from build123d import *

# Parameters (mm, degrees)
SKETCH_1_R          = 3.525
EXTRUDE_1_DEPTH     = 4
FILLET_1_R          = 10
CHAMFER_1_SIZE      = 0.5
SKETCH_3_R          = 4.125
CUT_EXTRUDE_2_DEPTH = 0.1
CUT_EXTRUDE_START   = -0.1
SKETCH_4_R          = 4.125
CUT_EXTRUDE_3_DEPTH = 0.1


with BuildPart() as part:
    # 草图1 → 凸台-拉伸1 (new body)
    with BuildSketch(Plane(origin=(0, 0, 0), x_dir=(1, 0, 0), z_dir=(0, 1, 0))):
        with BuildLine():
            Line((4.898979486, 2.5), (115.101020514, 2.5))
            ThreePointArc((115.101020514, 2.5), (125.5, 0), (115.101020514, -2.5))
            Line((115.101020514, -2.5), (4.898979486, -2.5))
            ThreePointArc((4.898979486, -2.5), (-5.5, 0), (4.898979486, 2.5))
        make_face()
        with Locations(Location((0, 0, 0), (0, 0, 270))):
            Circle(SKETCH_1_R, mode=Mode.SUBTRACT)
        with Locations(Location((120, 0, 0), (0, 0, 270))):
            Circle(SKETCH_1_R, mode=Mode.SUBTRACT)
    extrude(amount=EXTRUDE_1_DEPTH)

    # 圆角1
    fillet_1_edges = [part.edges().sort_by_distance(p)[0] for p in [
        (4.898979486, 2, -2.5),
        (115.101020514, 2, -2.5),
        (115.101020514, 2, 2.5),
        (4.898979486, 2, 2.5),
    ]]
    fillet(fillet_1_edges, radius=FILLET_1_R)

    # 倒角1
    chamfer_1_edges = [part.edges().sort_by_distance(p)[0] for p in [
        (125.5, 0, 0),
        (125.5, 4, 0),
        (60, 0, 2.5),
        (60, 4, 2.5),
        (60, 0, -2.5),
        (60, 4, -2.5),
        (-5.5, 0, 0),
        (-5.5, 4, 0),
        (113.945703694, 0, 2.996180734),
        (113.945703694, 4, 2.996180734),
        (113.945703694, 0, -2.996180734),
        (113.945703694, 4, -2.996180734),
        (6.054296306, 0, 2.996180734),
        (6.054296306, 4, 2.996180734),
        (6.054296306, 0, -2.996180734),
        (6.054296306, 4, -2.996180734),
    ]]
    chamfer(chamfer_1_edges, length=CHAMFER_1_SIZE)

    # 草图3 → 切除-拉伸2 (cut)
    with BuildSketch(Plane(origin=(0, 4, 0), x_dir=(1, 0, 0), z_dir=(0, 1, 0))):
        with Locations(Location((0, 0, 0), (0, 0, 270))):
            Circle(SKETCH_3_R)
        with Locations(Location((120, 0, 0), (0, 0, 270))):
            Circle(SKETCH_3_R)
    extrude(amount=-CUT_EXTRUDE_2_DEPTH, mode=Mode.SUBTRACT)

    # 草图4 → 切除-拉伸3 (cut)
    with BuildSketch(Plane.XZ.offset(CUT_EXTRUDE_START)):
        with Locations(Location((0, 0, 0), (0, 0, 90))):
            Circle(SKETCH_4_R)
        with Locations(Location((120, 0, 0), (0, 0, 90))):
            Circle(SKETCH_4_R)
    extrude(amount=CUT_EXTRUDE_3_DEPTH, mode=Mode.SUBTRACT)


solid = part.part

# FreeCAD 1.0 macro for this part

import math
import FreeCAD as App
import Part
import Sketcher
from FreeCAD import Vector


def edges_at(feature, points):
    """Names of the edges that pass closest to the given points."""
    edges = feature.Shape.Edges
    near = lambda p: min(range(len(edges)), key=lambda i: edges[i].distToShape(Part.Vertex(*p))[0])
    return sorted({f"Edge{near(p) + 1}" for p in points})

doc = App.newDocument("Part")
body = doc.addObject("PartDesign::Body", "Body")

# Sketch on XZ plane
sketch1 = body.newObject("Sketcher::SketchObject", "Sketch")
sketch1.AttachmentSupport = (doc.getObject("XZ_Plane"), [""])
sketch1.MapMode = "FlatFace"
sketch1.addGeometry([
    Part.LineSegment(Vector(115.1, -2.5, 0), Vector(4.9, -2.5, 0)),  # 0
    Part.ArcOfCircle(Part.Circle(Vector(0, 0, 0), Vector(0, 0, 1), 5.5), math.radians(27), math.radians(333)),  # 1
    Part.LineSegment(Vector(4.9, 2.5, 0), Vector(115.1, 2.5, 0)),  # 2
    Part.ArcOfCircle(Part.Circle(Vector(120, 0, 0), Vector(0, 0, 1), 5.5), math.radians(-153), math.radians(153)),  # 3
    Part.Circle(Vector(120, 0, 0), Vector(0, 0, 1), 3.5),  # 4
    Part.Circle(Vector(0, 0, 0), Vector(0, 0, 1), 3.5),  # 5
], False)
sketch1.addConstraint([
    Sketcher.Constraint("Coincident", 0, 2, 1, 2),
    Sketcher.Constraint("Coincident", 1, 1, 2, 1),
    Sketcher.Constraint("Coincident", 2, 2, 3, 2),
    Sketcher.Constraint("Coincident", 3, 1, 0, 1),
    Sketcher.Constraint("Horizontal", 0),
    Sketcher.Constraint("Horizontal", 2),
    Sketcher.Constraint("Coincident", 1, 3, -1, 1),
    Sketcher.Constraint("Coincident", 5, 3, -1, 1),
    Sketcher.Constraint("Coincident", 4, 3, 3, 3),
    Sketcher.Constraint("Equal", 1, 3),
    Sketcher.Constraint("Equal", 4, 5),
    Sketcher.Constraint("Symmetric", 2, 2, 3, 1, -1),
    Sketcher.Constraint("Radius", 1, 5.5),
    Sketcher.Constraint("Diameter", 4, 7.05),
    Sketcher.Constraint("DistanceX", -1, 1, 3, 3, 120.0),
    Sketcher.Constraint("DistanceY", 0, 2, 1, 1, 5.0),
])
pad1 = body.newObject("PartDesign::Pad", "Pad")
pad1.Profile = sketch1
pad1.Length = 4
pad1.Reversed = True
doc.recompute()

fillet = body.newObject("PartDesign::Fillet", "Fillet")
fillet.Base = (pad1, edges_at(pad1, [
    (4.899, 2, -2.5),
    (115.101, 2, -2.5),
    (115.101, 2, 2.5),
    (4.899, 2, 2.5),
]))
fillet.Radius = 10
doc.recompute()

chamfer = body.newObject("PartDesign::Chamfer", "Chamfer")
chamfer.Base = (fillet, edges_at(fillet, [
    (125.5, 0, 0),
    (125.5, 4, 0),
    (60, 0, 2.5),
    (60, 4, 2.5),
    (60, 0, -2.5),
    (60, 4, -2.5),
    (-5.5, 0, 0),
    (-5.5, 4, 0),
    (113.946, 0, 2.996),
    (113.946, 4, 2.996),
    (113.946, 0, -2.996),
    (113.946, 4, -2.996),
    (6.054, 0, 2.996),
    (6.054, 4, 2.996),
    (6.054, 0, -2.996),
    (6.054, 4, -2.996),
]))
chamfer.Size = 0.5

# Sketch on XZ plane
sketch2 = body.newObject("Sketcher::SketchObject", "Sketch001")
sketch2.AttachmentSupport = (doc.getObject("XZ_Plane"), [""])
sketch2.MapMode = "FlatFace"
sketch2.AttachmentOffset = App.Placement(Vector(0, 0, -4), App.Rotation())
sketch2.addGeometry([
    Part.Circle(Vector(0, 0, 0), Vector(0, 0, 1), 4.1),
    Part.Circle(Vector(120, 0, 0), Vector(0, 0, 1), 4.1),
], False)
sketch2.addConstraint([
    Sketcher.Constraint("Coincident", 0, 3, -1, 1),
    Sketcher.Constraint("Equal", 0, 1),
    Sketcher.Constraint("PointOnObject", 1, 3, -1),
    Sketcher.Constraint("Diameter", 0, 8.25),
    Sketcher.Constraint("DistanceX", -1, 1, 1, 3, 120.0),
])
pocket1 = body.newObject("PartDesign::Pocket", "Pocket")
pocket1.Profile = sketch2
pocket1.Length = 0.1
pocket1.Reversed = True

# Sketch on XZ plane
sketch3 = body.newObject("Sketcher::SketchObject", "Sketch002")
sketch3.AttachmentSupport = (doc.getObject("XZ_Plane"), [""])
sketch3.MapMode = "FlatFace"
sketch3.AttachmentOffset = App.Placement(Vector(0, 0, -0.1), App.Rotation())
sketch3.addGeometry([
    Part.Circle(Vector(0, 0, 0), Vector(0, 0, 1), 4.1),
    Part.Circle(Vector(120, 0, 0), Vector(0, 0, 1), 4.1),
], False)
sketch3.addConstraint([
    Sketcher.Constraint("Coincident", 0, 3, -1, 1),
    Sketcher.Constraint("Equal", 0, 1),
    Sketcher.Constraint("PointOnObject", 1, 3, -1),
    Sketcher.Constraint("Diameter", 0, 8.25),
    Sketcher.Constraint("DistanceX", -1, 1, 1, 3, 120.0),
])
pocket2 = body.newObject("PartDesign::Pocket", "Pocket001")
pocket2.Profile = sketch3
pocket2.Length = 0.1
pocket2.Reversed = True

doc.recompute()
